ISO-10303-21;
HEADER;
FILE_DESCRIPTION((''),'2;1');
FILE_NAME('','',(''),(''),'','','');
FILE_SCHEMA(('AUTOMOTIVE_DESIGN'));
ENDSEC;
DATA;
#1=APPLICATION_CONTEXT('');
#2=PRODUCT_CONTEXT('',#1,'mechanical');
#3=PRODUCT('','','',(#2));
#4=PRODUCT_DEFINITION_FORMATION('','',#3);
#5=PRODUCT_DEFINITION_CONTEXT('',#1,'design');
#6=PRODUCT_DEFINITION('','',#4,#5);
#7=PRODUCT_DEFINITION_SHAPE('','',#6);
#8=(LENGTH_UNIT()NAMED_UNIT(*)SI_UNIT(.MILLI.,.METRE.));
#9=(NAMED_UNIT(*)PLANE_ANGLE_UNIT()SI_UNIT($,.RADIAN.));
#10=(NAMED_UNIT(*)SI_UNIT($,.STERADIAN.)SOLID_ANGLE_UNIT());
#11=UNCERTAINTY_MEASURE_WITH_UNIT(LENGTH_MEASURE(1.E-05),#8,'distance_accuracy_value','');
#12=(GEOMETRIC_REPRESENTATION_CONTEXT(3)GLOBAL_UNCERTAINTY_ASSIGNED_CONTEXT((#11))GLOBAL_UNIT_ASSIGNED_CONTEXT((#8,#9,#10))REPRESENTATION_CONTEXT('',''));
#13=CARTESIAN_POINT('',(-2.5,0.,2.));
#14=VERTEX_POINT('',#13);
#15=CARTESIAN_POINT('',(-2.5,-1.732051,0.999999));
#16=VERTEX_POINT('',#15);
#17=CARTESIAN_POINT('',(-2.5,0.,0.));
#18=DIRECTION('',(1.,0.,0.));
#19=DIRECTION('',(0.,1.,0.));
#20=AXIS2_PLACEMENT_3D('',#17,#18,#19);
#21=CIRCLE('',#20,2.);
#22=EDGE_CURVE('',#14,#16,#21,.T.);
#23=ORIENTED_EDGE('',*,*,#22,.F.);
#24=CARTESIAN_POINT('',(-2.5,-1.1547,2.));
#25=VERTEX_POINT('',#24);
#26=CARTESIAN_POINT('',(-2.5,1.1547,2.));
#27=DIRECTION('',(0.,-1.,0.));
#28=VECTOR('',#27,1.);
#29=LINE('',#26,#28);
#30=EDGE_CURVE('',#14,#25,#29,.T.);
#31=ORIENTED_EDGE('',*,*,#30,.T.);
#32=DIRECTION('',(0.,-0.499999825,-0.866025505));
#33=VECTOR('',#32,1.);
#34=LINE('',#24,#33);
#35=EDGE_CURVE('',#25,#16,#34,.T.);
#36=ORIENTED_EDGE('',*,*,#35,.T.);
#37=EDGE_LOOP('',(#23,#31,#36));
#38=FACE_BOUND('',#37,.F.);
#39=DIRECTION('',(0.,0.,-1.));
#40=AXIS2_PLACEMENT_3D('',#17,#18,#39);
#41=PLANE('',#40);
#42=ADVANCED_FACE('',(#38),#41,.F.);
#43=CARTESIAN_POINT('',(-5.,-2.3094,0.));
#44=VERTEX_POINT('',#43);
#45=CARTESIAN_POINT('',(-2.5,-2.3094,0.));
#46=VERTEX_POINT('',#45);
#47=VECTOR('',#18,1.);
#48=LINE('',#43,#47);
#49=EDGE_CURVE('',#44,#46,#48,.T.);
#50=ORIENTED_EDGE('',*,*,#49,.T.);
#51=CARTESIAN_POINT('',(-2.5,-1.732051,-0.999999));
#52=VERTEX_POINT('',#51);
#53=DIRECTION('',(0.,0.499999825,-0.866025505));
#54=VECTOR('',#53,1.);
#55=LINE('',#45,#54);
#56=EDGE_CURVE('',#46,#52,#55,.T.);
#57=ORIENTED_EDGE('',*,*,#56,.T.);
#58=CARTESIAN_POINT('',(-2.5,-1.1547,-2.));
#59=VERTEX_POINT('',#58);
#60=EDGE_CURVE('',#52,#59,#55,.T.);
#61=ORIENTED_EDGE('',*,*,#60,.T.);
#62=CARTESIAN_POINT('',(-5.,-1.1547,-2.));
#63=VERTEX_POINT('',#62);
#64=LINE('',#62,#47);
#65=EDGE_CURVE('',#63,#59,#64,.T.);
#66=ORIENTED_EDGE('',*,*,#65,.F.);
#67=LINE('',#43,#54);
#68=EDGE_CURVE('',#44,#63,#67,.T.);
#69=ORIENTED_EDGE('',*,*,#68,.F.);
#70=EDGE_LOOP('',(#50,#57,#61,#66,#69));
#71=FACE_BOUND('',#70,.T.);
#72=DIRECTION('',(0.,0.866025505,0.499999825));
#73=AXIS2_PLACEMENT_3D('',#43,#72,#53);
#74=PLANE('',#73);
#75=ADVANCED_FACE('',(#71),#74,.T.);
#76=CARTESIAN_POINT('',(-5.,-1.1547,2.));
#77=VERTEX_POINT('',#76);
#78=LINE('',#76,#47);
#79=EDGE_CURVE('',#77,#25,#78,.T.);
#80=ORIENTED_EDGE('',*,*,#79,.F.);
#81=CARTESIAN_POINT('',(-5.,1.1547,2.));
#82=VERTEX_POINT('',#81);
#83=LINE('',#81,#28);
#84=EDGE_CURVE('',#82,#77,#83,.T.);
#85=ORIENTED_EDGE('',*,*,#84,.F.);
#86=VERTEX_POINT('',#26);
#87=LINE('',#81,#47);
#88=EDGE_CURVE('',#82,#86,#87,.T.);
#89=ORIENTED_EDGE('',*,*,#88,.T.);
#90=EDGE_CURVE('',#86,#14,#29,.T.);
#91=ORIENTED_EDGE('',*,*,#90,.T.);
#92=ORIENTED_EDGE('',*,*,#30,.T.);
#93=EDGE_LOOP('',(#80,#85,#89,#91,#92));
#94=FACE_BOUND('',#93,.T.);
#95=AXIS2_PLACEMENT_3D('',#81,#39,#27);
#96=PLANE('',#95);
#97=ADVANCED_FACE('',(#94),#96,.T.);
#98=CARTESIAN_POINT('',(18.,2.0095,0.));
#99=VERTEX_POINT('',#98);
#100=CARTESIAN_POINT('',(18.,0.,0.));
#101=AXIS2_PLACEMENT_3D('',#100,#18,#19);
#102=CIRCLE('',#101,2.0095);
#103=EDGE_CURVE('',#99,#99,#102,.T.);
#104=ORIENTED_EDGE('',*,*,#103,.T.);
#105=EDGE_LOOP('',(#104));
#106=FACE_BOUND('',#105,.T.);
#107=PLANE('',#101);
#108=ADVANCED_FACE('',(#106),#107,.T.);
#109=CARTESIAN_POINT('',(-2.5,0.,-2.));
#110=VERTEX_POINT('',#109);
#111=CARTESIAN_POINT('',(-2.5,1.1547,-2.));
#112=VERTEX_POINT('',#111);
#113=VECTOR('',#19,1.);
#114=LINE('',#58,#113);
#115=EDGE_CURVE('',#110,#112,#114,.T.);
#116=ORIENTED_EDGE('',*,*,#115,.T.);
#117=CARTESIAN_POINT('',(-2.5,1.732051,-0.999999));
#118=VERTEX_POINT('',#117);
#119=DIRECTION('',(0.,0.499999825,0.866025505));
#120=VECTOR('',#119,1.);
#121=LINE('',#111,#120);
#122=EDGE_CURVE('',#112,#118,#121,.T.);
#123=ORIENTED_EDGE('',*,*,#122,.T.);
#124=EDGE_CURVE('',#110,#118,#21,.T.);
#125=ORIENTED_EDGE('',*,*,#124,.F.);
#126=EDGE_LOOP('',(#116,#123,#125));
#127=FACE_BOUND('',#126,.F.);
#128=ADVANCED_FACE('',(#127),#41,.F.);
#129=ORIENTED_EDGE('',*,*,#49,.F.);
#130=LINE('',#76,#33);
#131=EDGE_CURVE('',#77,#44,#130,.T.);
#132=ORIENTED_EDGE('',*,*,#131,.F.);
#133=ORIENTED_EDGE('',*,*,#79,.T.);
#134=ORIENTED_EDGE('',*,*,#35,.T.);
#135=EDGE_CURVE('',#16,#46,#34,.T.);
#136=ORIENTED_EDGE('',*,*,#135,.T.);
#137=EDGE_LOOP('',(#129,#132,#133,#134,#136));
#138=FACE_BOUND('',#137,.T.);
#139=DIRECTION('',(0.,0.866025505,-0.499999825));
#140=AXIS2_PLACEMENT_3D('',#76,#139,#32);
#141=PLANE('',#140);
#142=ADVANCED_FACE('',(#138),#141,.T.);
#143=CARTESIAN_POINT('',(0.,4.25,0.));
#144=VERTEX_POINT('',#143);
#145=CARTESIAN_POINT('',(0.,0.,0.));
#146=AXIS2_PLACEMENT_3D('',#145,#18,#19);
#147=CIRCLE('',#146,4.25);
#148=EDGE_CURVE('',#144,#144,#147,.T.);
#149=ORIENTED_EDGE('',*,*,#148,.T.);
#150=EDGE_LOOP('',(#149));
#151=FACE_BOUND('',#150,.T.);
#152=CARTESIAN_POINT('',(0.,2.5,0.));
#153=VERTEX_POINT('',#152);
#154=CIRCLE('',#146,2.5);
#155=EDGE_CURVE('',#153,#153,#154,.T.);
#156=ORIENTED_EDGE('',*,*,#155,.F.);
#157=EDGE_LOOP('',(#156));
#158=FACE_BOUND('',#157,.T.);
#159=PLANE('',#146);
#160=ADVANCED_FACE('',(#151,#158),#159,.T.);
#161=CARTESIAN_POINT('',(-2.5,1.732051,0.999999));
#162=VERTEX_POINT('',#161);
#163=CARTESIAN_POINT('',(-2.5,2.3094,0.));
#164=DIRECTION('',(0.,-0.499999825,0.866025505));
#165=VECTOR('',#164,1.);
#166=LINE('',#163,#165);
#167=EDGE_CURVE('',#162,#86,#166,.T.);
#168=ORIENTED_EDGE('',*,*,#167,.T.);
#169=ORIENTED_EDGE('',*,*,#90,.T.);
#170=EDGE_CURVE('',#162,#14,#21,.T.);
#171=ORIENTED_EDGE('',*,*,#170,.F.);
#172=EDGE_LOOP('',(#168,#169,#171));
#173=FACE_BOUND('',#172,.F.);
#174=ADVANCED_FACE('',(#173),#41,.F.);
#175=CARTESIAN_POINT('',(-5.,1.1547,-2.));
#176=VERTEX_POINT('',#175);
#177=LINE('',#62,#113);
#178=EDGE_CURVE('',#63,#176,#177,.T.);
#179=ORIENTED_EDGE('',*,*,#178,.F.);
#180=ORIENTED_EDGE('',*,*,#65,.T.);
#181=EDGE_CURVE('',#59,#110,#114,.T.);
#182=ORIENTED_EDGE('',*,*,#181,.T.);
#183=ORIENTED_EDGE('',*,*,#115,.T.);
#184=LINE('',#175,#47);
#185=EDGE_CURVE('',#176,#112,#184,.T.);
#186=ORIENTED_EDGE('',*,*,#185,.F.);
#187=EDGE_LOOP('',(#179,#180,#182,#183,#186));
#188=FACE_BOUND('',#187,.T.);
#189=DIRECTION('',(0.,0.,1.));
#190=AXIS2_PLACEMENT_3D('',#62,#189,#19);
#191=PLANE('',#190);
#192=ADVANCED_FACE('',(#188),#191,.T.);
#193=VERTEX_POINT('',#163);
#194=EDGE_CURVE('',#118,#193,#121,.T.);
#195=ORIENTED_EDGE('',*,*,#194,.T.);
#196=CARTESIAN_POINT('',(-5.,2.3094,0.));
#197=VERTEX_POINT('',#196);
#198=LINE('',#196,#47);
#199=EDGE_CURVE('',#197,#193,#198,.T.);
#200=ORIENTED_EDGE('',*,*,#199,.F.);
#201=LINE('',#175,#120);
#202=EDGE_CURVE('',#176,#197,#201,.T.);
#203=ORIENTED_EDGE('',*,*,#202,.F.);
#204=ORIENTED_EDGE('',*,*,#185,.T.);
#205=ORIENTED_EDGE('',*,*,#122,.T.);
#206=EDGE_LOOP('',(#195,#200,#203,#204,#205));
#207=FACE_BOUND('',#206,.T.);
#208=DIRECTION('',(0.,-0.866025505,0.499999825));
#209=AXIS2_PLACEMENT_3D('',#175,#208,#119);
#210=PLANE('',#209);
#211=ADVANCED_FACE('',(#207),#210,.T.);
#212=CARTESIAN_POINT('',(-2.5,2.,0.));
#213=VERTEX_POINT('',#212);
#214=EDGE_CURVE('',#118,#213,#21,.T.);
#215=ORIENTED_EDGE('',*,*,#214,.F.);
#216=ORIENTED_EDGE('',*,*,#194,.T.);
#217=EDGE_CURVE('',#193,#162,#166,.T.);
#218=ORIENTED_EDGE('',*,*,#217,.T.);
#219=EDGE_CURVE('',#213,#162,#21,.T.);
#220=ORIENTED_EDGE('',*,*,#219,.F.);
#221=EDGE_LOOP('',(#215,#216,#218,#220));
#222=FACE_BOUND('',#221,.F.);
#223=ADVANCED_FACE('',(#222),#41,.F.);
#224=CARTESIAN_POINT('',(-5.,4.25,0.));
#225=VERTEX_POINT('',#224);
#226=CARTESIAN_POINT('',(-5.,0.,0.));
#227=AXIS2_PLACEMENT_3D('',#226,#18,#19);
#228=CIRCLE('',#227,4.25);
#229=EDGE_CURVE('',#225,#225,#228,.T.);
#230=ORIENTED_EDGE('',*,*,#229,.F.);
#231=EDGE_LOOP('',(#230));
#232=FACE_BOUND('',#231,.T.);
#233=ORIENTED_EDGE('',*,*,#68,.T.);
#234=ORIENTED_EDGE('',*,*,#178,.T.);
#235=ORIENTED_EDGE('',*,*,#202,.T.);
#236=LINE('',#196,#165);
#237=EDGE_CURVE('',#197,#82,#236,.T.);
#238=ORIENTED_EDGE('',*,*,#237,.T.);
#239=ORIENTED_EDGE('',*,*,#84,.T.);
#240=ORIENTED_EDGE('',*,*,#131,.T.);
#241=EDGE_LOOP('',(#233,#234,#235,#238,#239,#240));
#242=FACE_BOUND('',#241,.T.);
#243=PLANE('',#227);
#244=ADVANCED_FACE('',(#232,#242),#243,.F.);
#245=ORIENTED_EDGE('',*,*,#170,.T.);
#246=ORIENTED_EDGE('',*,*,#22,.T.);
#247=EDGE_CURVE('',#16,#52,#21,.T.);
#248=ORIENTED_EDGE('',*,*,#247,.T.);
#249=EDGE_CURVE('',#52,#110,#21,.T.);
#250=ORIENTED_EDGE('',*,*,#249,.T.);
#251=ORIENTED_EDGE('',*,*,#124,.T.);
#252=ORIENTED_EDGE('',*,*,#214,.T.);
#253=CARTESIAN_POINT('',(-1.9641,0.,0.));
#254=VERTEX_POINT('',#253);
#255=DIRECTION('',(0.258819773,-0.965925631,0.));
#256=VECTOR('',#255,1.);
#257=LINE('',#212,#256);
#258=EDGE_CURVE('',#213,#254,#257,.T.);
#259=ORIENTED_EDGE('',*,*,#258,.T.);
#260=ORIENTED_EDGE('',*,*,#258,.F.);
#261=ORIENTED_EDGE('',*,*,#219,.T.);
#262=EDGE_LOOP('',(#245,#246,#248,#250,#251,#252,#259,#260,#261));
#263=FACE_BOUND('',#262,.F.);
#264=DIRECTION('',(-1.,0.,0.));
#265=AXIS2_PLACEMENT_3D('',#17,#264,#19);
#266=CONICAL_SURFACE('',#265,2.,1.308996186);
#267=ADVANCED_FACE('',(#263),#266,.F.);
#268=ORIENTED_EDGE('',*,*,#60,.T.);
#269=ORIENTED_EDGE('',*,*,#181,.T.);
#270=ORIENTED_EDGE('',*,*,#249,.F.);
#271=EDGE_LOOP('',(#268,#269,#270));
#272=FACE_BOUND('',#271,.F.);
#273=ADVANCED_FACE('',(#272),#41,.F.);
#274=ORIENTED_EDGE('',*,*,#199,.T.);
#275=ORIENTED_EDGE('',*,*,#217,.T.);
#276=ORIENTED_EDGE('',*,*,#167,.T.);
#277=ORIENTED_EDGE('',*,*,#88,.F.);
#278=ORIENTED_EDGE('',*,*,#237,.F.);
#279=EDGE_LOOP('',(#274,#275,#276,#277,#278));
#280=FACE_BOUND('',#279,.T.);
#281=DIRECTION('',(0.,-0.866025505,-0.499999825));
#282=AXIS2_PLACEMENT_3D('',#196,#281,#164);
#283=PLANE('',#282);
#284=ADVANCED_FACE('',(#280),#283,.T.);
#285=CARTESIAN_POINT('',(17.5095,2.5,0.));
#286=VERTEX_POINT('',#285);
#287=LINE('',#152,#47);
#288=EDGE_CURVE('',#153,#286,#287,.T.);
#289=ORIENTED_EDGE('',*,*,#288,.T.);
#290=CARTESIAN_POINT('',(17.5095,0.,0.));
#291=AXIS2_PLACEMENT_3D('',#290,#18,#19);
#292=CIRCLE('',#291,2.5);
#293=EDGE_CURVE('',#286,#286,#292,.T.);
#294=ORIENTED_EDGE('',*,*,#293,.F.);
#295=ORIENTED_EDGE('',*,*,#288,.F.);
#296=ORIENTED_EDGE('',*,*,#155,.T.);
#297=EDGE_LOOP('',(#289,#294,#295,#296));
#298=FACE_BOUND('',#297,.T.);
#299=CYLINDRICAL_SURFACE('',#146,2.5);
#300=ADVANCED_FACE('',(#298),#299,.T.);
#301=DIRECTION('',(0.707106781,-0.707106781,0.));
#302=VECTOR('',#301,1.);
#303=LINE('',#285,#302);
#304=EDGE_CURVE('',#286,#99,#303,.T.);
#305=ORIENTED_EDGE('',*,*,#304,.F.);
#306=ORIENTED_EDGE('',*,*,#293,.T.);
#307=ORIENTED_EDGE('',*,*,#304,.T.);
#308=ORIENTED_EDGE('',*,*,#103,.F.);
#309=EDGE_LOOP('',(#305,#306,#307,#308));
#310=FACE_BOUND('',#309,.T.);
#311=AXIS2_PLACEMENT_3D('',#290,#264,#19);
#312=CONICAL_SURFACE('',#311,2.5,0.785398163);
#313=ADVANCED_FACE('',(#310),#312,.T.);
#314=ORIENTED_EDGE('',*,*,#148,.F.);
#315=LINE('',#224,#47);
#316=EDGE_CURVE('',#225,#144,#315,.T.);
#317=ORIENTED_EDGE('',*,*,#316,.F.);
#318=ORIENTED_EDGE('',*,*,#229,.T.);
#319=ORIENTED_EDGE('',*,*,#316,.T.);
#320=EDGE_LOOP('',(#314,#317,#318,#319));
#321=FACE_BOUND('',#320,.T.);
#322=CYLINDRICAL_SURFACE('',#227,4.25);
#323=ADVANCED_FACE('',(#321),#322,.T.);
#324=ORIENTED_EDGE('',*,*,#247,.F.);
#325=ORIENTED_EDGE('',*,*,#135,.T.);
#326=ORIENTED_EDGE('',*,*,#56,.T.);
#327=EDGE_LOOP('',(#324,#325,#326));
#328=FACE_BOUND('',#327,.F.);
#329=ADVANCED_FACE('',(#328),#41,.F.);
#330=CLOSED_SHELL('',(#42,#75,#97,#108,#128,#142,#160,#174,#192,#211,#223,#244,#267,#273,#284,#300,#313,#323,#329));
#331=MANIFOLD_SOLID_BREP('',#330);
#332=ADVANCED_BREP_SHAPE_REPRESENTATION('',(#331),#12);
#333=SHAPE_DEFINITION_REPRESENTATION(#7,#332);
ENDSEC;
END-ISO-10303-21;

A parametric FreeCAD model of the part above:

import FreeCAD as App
import Part
import Sketcher
from FreeCAD import Vector
Q = App.Units.Quantity

doc = App.newDocument("Part")
body = doc.addObject("PartDesign::Body", "Body")

# Sketch on XY plane
sketch1 = body.newObject("Sketcher::SketchObject", "Sketch")
sketch1.AttachmentSupport = (doc.getObject("XY_Plane"), [""])
sketch1.MapMode = "FlatFace"
sketch1.addGeometry([
    Part.LineSegment(Vector(-5, 0, 0), Vector(18, 0, 0)),  # 0
    Part.LineSegment(Vector(18, 0, 0), Vector(18, 2, 0)),  # 1
    Part.LineSegment(Vector(18, 2, 0), Vector(17.5, 2.5, 0)),  # 2
    Part.LineSegment(Vector(17.5, 2.5, 0), Vector(0, 2.5, 0)),  # 3
    Part.LineSegment(Vector(0, 2.5, 0), Vector(0, 4.2, 0)),  # 4
    Part.LineSegment(Vector(0, 4.2, 0), Vector(-5, 4.2, 0)),  # 5
    Part.LineSegment(Vector(-5, 4.2, 0), Vector(-5, 0, 0)),  # 6
], False)
sketch1.addConstraint([
    Sketcher.Constraint("Coincident", 0, 2, 1, 1),
    Sketcher.Constraint("Coincident", 1, 2, 2, 1),
    Sketcher.Constraint("Coincident", 2, 2, 3, 1),
    Sketcher.Constraint("Coincident", 3, 2, 4, 1),
    Sketcher.Constraint("Coincident", 4, 2, 5, 1),
    Sketcher.Constraint("Coincident", 5, 2, 6, 1),
    Sketcher.Constraint("Coincident", 6, 2, 0, 1),
    Sketcher.Constraint("Horizontal", 0),
    Sketcher.Constraint("Vertical", 1),
    Sketcher.Constraint("Horizontal", 3),
    Sketcher.Constraint("Vertical", 4),
    Sketcher.Constraint("Horizontal", 5),
    Sketcher.Constraint("Vertical", 6),
    Sketcher.Constraint("PointOnObject", 0, 2, -1),
    Sketcher.Constraint("PointOnObject", 3, 2, -2),
    Sketcher.Constraint("DistanceX", 0, 1, 0, 2, Q("23 mm")),
    Sketcher.Constraint("DistanceX", 5, 2, 5, 1, Q("5 mm")),
    Sketcher.Constraint("Angle", 2, Q("135 deg")),
    Sketcher.Constraint("DistanceY", 4, 1, 4, 2, Q("1.75 mm")),
    Sketcher.Constraint("DistanceY", 6, 2, 6, 1, Q("4.25 mm")),
    Sketcher.Constraint("DistanceX", 3, 2, 3, 1, Q("17.5095 mm")),
])
revolution = body.newObject("PartDesign::Revolution", "Revolution")
revolution.Profile = sketch1
revolution.ReferenceAxis = (sketch1, ["H_Axis"])
revolution.Angle = 360

# Sketch on XY plane
sketch2 = body.newObject("Sketcher::SketchObject", "Sketch001")
sketch2.AttachmentSupport = (doc.getObject("XY_Plane"), [""])
sketch2.MapMode = "FlatFace"
sketch2.addGeometry([
    Part.LineSegment(Vector(-5, 0, 0), Vector(-2, 0, 0)),
    Part.LineSegment(Vector(-2, 0, 0), Vector(-2.5, 2, 0)),
    Part.LineSegment(Vector(-2.5, 2, 0), Vector(-5, 2, 0)),
    Part.LineSegment(Vector(-5, 2, 0), Vector(-5, 0, 0)),
], False)
sketch2.addConstraint([
    Sketcher.Constraint("Coincident", 0, 2, 1, 1),
    Sketcher.Constraint("Coincident", 1, 2, 2, 1),
    Sketcher.Constraint("Coincident", 2, 2, 3, 1),
    Sketcher.Constraint("Coincident", 3, 2, 0, 1),
    Sketcher.Constraint("Horizontal", 0),
    Sketcher.Constraint("Horizontal", 2),
    Sketcher.Constraint("Vertical", 3),
    Sketcher.Constraint("PointOnObject", 0, 2, -1),
    Sketcher.Constraint("DistanceY", 3, 2, 3, 1, Q("2 mm")),
    Sketcher.Constraint("Angle", 1, Q("105 deg")),
    Sketcher.Constraint("DistanceX", 2, 2, 2, 1, Q("2.5 mm")),
    Sketcher.Constraint("DistanceX", 2, 2, -1, 1, Q("5 mm")),
])
groove = body.newObject("PartDesign::Groove", "Groove")
groove.Profile = sketch2
groove.ReferenceAxis = (sketch2, ["H_Axis"])
groove.Angle = 360

# Sketch on YZ plane
sketch3 = body.newObject("Sketcher::SketchObject", "Sketch002")
sketch3.AttachmentSupport = (doc.getObject("YZ_Plane"), [""])
sketch3.MapMode = "FlatFace"
sketch3.AttachmentOffset = App.Placement(Vector(0, 0, -5), App.Rotation())
sketch3.addGeometry([
    Part.LineSegment(Vector(2.3, 0, 0), Vector(1.2, 2, 0)),  # 0
    Part.LineSegment(Vector(1.2, 2, 0), Vector(-1.2, 2, 0)),  # 1
    Part.LineSegment(Vector(-1.2, 2, 0), Vector(-2.3, 0, 0)),  # 2
    Part.LineSegment(Vector(-2.3, 0, 0), Vector(-1.2, -2, 0)),  # 3
    Part.LineSegment(Vector(-1.2, -2, 0), Vector(1.2, -2, 0)),  # 4
    Part.LineSegment(Vector(1.2, -2, 0), Vector(2.3, 0, 0)),  # 5
], False)
sketch3.addConstraint([
    Sketcher.Constraint("Coincident", 0, 2, 1, 1),
    Sketcher.Constraint("Coincident", 1, 2, 2, 1),
    Sketcher.Constraint("Coincident", 2, 2, 3, 1),
    Sketcher.Constraint("Coincident", 3, 2, 4, 1),
    Sketcher.Constraint("Coincident", 4, 2, 5, 1),
    Sketcher.Constraint("Coincident", 5, 2, 0, 1),
    Sketcher.Constraint("Horizontal", 1),
    Sketcher.Constraint("Horizontal", 4),
    Sketcher.Constraint("Symmetric", 0, 2, 3, 2, -1, 1),
    Sketcher.Constraint("Symmetric", 2, 2, 5, 2, -1, 1),
    Sketcher.Constraint("PointOnObject", 2, 2, -1),
    Sketcher.Constraint("Parallel", 2, 5),
    Sketcher.Constraint("Vertical", 1, 2, 3, 2),
    Sketcher.Constraint("Angle", 0, Q("120 deg")),
    Sketcher.Constraint("DistanceY", -1, 1, 0, 2, Q("2 mm")),
    Sketcher.Constraint("DistanceX", 1, 2, 1, 1, Q("2.3094 mm")),
])
pocket1 = body.newObject("PartDesign::Pocket", "Pocket")
pocket1.Profile = sketch3
pocket1.Length = 2.5
pocket1.Reversed = True

doc.recompute()
